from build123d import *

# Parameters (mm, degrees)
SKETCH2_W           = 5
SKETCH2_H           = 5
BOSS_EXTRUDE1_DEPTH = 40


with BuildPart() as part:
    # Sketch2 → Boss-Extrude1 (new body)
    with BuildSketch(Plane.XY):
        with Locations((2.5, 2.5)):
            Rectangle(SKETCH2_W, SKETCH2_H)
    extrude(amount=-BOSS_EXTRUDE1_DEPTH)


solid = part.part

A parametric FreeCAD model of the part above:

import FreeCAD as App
import Part
import Sketcher
from FreeCAD import Vector
Q = App.Units.Quantity

doc = App.newDocument("Part")
params = doc.addObject("Spreadsheet::Sheet", "Params")
for row, (alias, value) in enumerate([
    ("sketch1_width", "5 mm"),
    ("pad1_length", "40 mm"),
], start=1):
    params.set(f"A{row}", alias)
    params.set(f"B{row}", "=" + value)
    params.setAlias(f"B{row}", alias)

body = doc.addObject("PartDesign::Body", "Body")

# Sketch on XY plane
sketch1 = doc.addObject("Sketcher::SketchObject", "Sketch")
body.addObject(sketch1)
sketch1.AttachmentSupport = (doc.XY_Plane, [""])
sketch1.MapMode = "FlatFace"
sketch1.addGeometry([
    Part.LineSegment(Vector(0, 5, 0), Vector(0, 0, 0)),
    Part.LineSegment(Vector(0, 0, 0), Vector(5, 0, 0)),
    Part.LineSegment(Vector(5, 0, 0), Vector(5, 5, 0)),
    Part.LineSegment(Vector(5, 5, 0), Vector(0, 5, 0)),
], False)
sketch1.addConstraint([
    Sketcher.Constraint("Coincident", 0, 2, 1, 1),
    Sketcher.Constraint("Coincident", 1, 2, 2, 1),
    Sketcher.Constraint("Coincident", 2, 2, 3, 1),
    Sketcher.Constraint("Coincident", 3, 2, 0, 1),
    Sketcher.Constraint("Vertical", 0),
    Sketcher.Constraint("Horizontal", 1),
    Sketcher.Constraint("Vertical", 2),
    Sketcher.Constraint("Horizontal", 3),
    Sketcher.Constraint("Coincident", 0, 2, -1, 1),
    Sketcher.Constraint("Equal", 3, 0),
    Sketcher.Constraint("DistanceX", 1, 1, 1, 2, Q("5 mm")),
])
sketch1.setExpression("Constraints[10]", "Params.sketch1_width")
pad1 = doc.addObject("PartDesign::Pad", "Pad")
body.addObject(pad1)
pad1.Profile = sketch1
pad1.setExpression("Length", "Params.pad1_length")
pad1.Reversed = True

doc.recompute()
